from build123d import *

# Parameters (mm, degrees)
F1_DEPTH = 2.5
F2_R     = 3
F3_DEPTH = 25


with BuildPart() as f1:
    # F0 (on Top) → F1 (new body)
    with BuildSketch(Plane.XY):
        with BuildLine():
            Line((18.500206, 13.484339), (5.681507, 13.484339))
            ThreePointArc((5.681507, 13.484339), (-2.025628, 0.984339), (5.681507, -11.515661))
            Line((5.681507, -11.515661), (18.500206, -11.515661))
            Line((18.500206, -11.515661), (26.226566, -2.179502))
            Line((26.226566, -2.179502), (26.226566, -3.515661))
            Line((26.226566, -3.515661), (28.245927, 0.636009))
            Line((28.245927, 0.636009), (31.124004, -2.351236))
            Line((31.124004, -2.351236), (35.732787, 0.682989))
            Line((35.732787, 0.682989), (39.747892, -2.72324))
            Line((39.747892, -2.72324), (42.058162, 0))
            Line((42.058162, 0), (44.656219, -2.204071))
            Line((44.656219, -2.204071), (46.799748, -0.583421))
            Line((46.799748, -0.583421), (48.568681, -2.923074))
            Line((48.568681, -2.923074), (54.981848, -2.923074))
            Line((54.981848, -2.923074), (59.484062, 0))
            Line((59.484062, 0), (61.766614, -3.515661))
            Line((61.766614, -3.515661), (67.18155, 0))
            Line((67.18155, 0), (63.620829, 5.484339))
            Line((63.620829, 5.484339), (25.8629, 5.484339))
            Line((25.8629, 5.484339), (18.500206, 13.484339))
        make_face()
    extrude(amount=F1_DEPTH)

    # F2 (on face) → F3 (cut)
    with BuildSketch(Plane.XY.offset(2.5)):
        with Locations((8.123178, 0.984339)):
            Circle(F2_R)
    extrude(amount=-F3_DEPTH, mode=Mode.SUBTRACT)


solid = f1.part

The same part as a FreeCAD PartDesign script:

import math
import FreeCAD as App
import Part
import Sketcher

V = App.Vector

doc = App.newDocument("Part")
body = doc.addObject("PartDesign::Body", "Body")

sketch1 = doc.addObject("Sketcher::SketchObject", "Sketch")
body.addObject(sketch1)
sketch1.AttachmentSupport = (doc.XY_Plane, [""])
sketch1.MapMode = "FlatFace"
sketch1.addGeometry([
    Part.LineSegment(V(18.5, 13.5, 0), V(5.7, 13.5, 0)),
    Part.ArcOfCircle(Part.Circle(V(12, 1, 0), V(0, 0, 1), 14), math.radians(117), math.radians(243)),
    Part.LineSegment(V(5.7, -11.5, 0), V(18.5, -11.5, 0)),
    Part.LineSegment(V(18.5, -11.5, 0), V(26.2, -2.2, 0)),
    Part.LineSegment(V(26.2, -2.2, 0), V(26.2, -3.5, 0)),
    Part.LineSegment(V(26.2, -3.5, 0), V(28.2, 0.6, 0)),
    Part.LineSegment(V(28.2, 0.6, 0), V(31.1, -2.4, 0)),
    Part.LineSegment(V(31.1, -2.4, 0), V(35.7, 0.7, 0)),
    Part.LineSegment(V(35.7, 0.7, 0), V(39.7, -2.7, 0)),
    Part.LineSegment(V(39.7, -2.7, 0), V(42.1, 0, 0)),
    Part.LineSegment(V(42.1, 0, 0), V(44.7, -2.2, 0)),
    Part.LineSegment(V(44.7, -2.2, 0), V(46.8, -0.6, 0)),
    Part.LineSegment(V(46.8, -0.6, 0), V(48.6, -2.9, 0)),
    Part.LineSegment(V(48.6, -2.9, 0), V(55, -2.9, 0)),
    Part.LineSegment(V(55, -2.9, 0), V(59.5, 0, 0)),
    Part.LineSegment(V(59.5, 0, 0), V(61.8, -3.5, 0)),
    Part.LineSegment(V(61.8, -3.5, 0), V(67.2, 0, 0)),
    Part.LineSegment(V(67.2, 0, 0), V(63.6, 5.5, 0)),
    Part.LineSegment(V(63.6, 5.5, 0), V(25.9, 5.5, 0)),
    Part.LineSegment(V(25.9, 5.5, 0), V(18.5, 13.5, 0)),
], False)
sketch1.addConstraint([
    Sketcher.Constraint("Coincident", 0, 2, 1, 1),
    Sketcher.Constraint("Coincident", 1, 2, 2, 1),
    Sketcher.Constraint("Coincident", 2, 2, 3, 1),
    Sketcher.Constraint("Coincident", 3, 2, 4, 1),
    Sketcher.Constraint("Coincident", 4, 2, 5, 1),
    Sketcher.Constraint("Coincident", 5, 2, 6, 1),
    Sketcher.Constraint("Coincident", 6, 2, 7, 1),
    Sketcher.Constraint("Coincident", 7, 2, 8, 1),
    Sketcher.Constraint("Coincident", 8, 2, 9, 1),
    Sketcher.Constraint("Coincident", 9, 2, 10, 1),
    Sketcher.Constraint("Coincident", 10, 2, 11, 1),
    Sketcher.Constraint("Coincident", 11, 2, 12, 1),
    Sketcher.Constraint("Coincident", 12, 2, 13, 1),
    Sketcher.Constraint("Coincident", 13, 2, 14, 1),
    Sketcher.Constraint("Coincident", 14, 2, 15, 1),
    Sketcher.Constraint("Coincident", 15, 2, 16, 1),
    Sketcher.Constraint("Coincident", 16, 2, 17, 1),
    Sketcher.Constraint("Coincident", 17, 2, 18, 1),
    Sketcher.Constraint("Coincident", 18, 2, 19, 1),
    Sketcher.Constraint("Coincident", 19, 2, 0, 1),
    Sketcher.Constraint("Horizontal", 0),
    Sketcher.Constraint("Horizontal", 2),
    Sketcher.Constraint("Vertical", 4),
    Sketcher.Constraint("Horizontal", 13),
    Sketcher.Constraint("Horizontal", 18),
    Sketcher.Constraint("PointOnObject", 9, 2, -1),
    Sketcher.Constraint("PointOnObject", 14, 2, -1),
    Sketcher.Constraint("PointOnObject", 16, 2, -1),
    Sketcher.Constraint("Perpendicular", 8, 9),
    Sketcher.Constraint("Perpendicular", 9, 10),
    Sketcher.Constraint("Perpendicular", 11, 12),
    Sketcher.Constraint("Perpendicular", 14, 15),
    Sketcher.Constraint("Perpendicular", 15, 16),
    Sketcher.Constraint("Perpendicular", 16, 17),
    Sketcher.Constraint("Horizontal", 4, 2, 15, 2),
    Sketcher.Constraint("Vertical", 0, 2, 1, 2),
    Sketcher.Constraint("Vertical", 2, 2, 19, 2),
    Sketcher.Constraint("DistanceY", 1, 2, 0, 2, 25.0),
    Sketcher.Constraint("DistanceY", 2, 2, 4, 2, 8.0),
    Sketcher.Constraint("DistanceY", 15, 2, 17, 2, 9.0),
    Sketcher.Constraint("Radius", 1, 13.990278),
    Sketcher.Constraint("DistanceX", 0, 2, 0, 1, 12.818699),
    Sketcher.Constraint("Distance", 3, 12.118602),
    Sketcher.Constraint("DistanceX", 18, 2, 18, 1, 37.757929),
    Sketcher.Constraint("DistanceY", 4, 2, 4, 1, 1.336159),
    Sketcher.Constraint("DistanceY", 3, 2, -1, 1, 2.179502),
    Sketcher.Constraint("DistanceX", -1, 1, 18, 2, 25.8629),
    Sketcher.Constraint("DistanceX", 2, 2, 6, 2, 12.623798),
    Sketcher.Constraint("DistanceX", 11, 2, 13, 2, 8.1821),
    Sketcher.Constraint("DistanceX", 9, 2, 14, 2, 17.4259),
    Sketcher.Constraint("Distance", 5, 4.616729),
    Sketcher.Constraint("Distance", 15, 4.191648),
    Sketcher.Constraint("Distance", 19, 10.872408),
    Sketcher.Constraint("DistanceX", 13, 1, 13, 2, 6.413167),
    Sketcher.Constraint("DistanceY", -1, 1, 5, 2, 0.636009),
    Sketcher.Constraint("DistanceY", -1, 1, 7, 2, 0.682989),
    Sketcher.Constraint("DistanceY", 8, 2, -1, 1, 2.72324),
    Sketcher.Constraint("DistanceX", -1, 1, 10, 2, 44.656219),
    Sketcher.Constraint("DistanceY", 10, 2, -1, 1, 2.204071),
    Sketcher.Constraint("DistanceY", 11, 2, -1, 1, 0.583421),
    Sketcher.Constraint("Distance", 6, 4.148127),
])
pad1 = doc.addObject("PartDesign::Pad", "Pad")
body.addObject(pad1)
pad1.Profile = sketch1
pad1.Length = 2.5

sketch2 = doc.addObject("Sketcher::SketchObject", "Sketch001")
body.addObject(sketch2)
sketch2.AttachmentSupport = (doc.XY_Plane, [""])
sketch2.MapMode = "FlatFace"
sketch2.AttachmentOffset = App.Placement(V(0, 0, 2.5), App.Rotation())
sketch2.addGeometry(Part.Circle(V(8.1, 1, 0), V(0, 0, 1), 3), False)
sketch2.addConstraint([
    Sketcher.Constraint("Diameter", 0, 6.0),
    Sketcher.Constraint("DistanceY", -1, 1, 0, 3, 0.984339),
    Sketcher.Constraint("DistanceX", -1, 1, 0, 3, 8.123178),
])
pocket1 = doc.addObject("PartDesign::Pocket", "Pocket")
body.addObject(pocket1)
pocket1.Profile = sketch2
pocket1.Length = 25

doc.recompute()
